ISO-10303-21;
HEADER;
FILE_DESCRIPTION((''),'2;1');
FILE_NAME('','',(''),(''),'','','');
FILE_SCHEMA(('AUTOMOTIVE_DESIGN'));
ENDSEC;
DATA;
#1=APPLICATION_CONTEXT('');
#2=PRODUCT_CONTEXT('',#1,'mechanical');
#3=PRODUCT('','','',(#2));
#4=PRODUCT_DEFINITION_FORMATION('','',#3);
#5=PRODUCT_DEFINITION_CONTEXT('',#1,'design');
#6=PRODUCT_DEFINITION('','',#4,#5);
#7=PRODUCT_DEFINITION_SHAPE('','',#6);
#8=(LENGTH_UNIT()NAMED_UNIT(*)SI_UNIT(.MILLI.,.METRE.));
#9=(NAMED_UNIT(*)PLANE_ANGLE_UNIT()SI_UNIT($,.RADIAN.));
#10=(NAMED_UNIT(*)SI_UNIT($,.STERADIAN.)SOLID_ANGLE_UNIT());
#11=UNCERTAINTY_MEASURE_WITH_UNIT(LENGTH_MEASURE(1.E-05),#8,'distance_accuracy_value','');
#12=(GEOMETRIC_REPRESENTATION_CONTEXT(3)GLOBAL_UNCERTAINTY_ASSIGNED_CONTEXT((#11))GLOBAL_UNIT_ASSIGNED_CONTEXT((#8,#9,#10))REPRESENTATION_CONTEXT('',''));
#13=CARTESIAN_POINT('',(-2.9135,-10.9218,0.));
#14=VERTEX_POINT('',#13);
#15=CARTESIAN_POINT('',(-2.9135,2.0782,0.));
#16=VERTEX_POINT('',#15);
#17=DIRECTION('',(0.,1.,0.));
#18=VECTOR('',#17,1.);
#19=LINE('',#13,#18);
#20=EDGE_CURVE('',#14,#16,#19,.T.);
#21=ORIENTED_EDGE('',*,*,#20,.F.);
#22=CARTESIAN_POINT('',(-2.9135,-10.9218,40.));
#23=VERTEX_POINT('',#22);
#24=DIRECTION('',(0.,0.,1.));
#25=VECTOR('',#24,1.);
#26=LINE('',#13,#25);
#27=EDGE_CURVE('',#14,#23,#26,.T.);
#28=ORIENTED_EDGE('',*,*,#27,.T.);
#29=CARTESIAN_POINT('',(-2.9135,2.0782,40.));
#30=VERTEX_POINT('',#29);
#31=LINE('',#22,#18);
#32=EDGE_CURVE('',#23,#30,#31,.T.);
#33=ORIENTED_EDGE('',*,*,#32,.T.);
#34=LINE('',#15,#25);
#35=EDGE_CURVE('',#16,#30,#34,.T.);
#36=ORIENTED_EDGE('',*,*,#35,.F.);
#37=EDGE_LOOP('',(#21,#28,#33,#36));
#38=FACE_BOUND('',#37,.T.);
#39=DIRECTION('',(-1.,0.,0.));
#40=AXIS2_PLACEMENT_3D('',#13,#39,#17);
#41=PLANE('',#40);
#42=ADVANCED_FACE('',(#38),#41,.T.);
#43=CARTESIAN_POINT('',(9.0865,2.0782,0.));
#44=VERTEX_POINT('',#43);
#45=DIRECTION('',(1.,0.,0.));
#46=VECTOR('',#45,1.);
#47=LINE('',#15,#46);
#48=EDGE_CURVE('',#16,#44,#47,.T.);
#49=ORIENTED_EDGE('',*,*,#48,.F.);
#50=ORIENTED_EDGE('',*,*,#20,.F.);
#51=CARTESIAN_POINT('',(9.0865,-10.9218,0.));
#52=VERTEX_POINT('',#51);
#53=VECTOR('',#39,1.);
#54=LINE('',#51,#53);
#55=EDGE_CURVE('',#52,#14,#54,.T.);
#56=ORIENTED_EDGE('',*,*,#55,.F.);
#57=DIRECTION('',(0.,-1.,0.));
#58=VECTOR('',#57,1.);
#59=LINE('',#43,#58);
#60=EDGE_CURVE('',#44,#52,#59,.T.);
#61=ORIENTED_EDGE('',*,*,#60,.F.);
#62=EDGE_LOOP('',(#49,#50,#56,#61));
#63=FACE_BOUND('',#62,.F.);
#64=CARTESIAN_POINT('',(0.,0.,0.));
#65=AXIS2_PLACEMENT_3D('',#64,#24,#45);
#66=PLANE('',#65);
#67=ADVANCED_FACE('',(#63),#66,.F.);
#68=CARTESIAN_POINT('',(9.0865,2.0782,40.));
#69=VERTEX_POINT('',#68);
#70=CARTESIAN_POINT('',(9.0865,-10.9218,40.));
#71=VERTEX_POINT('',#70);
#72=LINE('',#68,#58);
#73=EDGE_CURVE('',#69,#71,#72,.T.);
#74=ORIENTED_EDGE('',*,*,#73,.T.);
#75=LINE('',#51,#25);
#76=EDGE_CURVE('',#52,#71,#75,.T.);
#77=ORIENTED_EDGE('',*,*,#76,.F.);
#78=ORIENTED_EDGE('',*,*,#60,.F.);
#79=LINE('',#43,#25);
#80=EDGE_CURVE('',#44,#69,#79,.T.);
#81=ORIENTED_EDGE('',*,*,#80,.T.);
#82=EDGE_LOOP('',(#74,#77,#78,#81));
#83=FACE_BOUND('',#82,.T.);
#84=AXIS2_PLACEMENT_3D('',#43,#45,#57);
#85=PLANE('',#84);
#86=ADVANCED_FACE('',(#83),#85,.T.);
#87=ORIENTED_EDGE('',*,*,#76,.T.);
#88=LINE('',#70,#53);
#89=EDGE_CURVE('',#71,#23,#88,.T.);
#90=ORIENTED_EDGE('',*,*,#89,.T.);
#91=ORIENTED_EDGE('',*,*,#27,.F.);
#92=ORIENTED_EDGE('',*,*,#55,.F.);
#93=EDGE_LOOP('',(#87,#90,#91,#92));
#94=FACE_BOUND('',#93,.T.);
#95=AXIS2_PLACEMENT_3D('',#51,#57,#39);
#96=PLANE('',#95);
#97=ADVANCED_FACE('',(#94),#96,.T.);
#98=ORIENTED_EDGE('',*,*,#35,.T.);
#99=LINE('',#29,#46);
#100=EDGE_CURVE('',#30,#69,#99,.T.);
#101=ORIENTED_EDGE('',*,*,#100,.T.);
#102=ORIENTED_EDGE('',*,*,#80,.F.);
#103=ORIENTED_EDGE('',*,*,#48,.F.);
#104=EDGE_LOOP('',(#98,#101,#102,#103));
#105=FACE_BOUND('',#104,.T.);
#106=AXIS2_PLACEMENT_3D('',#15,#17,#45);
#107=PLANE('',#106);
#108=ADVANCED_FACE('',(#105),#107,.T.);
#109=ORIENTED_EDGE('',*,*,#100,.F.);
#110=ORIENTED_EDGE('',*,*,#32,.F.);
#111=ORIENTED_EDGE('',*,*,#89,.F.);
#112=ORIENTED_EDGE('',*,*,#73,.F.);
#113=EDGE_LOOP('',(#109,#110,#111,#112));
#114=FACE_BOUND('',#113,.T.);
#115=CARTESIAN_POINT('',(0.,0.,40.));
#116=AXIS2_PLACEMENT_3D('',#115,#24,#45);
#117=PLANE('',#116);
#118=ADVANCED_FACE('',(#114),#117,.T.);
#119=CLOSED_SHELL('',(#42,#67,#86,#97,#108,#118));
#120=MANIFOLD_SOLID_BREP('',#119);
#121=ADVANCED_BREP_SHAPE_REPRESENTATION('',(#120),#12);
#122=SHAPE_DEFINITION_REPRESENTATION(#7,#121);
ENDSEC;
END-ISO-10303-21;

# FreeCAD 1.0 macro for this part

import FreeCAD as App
import Part
import Sketcher
from FreeCAD import Vector
Q = App.Units.Quantity

doc = App.newDocument("Part")
params = doc.addObject("Spreadsheet::Sheet", "Params")
for row, (alias, value) in enumerate([
    ("sketch1_width", "12 mm"),
    ("sketch1_height", "13 mm"),
    ("pad1_length", "40 mm"),
], start=1):
    params.set(f"A{row}", alias)
    params.set(f"B{row}", "=" + value)
    params.setAlias(f"B{row}", alias)

body = doc.addObject("PartDesign::Body", "Body")

sketch1 = body.newObject("Sketcher::SketchObject", "Sketch")
sketch1.AttachmentSupport = (doc.getObject("XY_Plane"), [""])
sketch1.MapMode = "FlatFace"
sketch1.addGeometry(Part.LineSegment(Vector(9, 2, 0), Vector(-3, 2, 0)), False)
sketch1.addGeometry(Part.LineSegment(Vector(-3, 2, 0), Vector(-3, -11, 0)), False)
sketch1.addGeometry(Part.LineSegment(Vector(-3, -11, 0), Vector(9, -11, 0)), False)
sketch1.addGeometry(Part.LineSegment(Vector(9, -11, 0), Vector(9, 2, 0)), False)
sketch1.addConstraint(Sketcher.Constraint("Coincident", 0, 2, 1, 1))
sketch1.addConstraint(Sketcher.Constraint("Coincident", 1, 2, 2, 1))
sketch1.addConstraint(Sketcher.Constraint("Coincident", 2, 2, 3, 1))
sketch1.addConstraint(Sketcher.Constraint("Coincident", 3, 2, 0, 1))
sketch1.addConstraint(Sketcher.Constraint("Horizontal", 0))
sketch1.addConstraint(Sketcher.Constraint("Vertical", 1))
sketch1.addConstraint(Sketcher.Constraint("Horizontal", 2))
sketch1.addConstraint(Sketcher.Constraint("Vertical", 3))
sketch1.addConstraint(Sketcher.Constraint("DistanceX", 0, 2, 0, 1, Q("12 mm")))
sketch1.addConstraint(Sketcher.Constraint("DistanceY", 1, 2, 1, 1, Q("13 mm")))
sketch1.addConstraint(Sketcher.Constraint("DistanceX", 0, 2, -1, 1, Q("2.9135 mm")))
sketch1.addConstraint(Sketcher.Constraint("DistanceY", -1, 1, 0, 2, Q("2.0782 mm")))
sketch1.setExpression("Constraints[8]", "Params.sketch1_width")
sketch1.setExpression("Constraints[9]", "Params.sketch1_height")
pad1 = body.newObject("PartDesign::Pad", "Pad")
pad1.Profile = sketch1
pad1.setExpression("Length", "Params.pad1_length")

doc.recompute()
